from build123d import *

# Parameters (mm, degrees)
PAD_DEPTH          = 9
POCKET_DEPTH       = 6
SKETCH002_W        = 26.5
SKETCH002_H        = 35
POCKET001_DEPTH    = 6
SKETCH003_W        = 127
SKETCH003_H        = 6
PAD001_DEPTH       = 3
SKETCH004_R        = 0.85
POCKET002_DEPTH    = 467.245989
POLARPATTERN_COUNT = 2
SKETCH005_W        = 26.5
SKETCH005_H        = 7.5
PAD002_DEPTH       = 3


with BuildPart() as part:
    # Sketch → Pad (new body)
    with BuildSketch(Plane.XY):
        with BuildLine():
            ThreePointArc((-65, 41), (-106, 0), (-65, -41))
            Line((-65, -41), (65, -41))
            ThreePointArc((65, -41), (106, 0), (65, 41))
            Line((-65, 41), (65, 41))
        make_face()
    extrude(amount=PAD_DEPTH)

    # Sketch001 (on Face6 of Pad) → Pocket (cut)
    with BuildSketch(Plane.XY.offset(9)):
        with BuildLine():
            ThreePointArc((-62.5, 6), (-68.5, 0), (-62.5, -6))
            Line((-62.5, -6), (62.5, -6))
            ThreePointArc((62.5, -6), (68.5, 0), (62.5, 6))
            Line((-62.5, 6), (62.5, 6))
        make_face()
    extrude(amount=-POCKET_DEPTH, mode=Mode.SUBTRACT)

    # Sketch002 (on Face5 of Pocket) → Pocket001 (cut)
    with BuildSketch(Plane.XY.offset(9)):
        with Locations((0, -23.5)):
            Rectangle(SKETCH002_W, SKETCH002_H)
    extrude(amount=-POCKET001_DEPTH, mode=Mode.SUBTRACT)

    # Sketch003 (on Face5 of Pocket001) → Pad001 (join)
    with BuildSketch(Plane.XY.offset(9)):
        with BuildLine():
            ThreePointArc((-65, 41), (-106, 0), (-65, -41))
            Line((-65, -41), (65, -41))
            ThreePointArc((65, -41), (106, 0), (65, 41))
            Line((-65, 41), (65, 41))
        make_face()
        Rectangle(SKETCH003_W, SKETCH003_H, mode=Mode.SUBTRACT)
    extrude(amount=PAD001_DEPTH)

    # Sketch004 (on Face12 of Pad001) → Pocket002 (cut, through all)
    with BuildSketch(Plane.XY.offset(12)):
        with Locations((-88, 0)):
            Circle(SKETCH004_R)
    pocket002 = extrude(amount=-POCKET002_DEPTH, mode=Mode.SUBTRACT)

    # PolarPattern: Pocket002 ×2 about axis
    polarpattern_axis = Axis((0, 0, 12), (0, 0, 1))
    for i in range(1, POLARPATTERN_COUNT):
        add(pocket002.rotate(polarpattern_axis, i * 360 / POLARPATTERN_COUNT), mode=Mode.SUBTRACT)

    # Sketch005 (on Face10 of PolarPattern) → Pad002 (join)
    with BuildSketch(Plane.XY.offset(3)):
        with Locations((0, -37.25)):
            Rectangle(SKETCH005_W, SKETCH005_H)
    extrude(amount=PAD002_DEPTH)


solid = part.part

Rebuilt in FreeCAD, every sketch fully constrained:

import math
import FreeCAD as App
import Part
import Sketcher
from FreeCAD import Vector
Q = App.Units.Quantity


def add_polygon(sketch, points):
    """Adds a closed chain of lines whose ends are joined by coincident constraints."""
    first, n = sketch.GeometryCount, len(points)
    for a, b in zip(points, points[1:] + points[:1]):
        sketch.addGeometry(Part.LineSegment(App.Vector(*a, 0), App.Vector(*b, 0)), False)
    for i in range(n):
        sketch.addConstraint(Sketcher.Constraint("Coincident", first + i, 2, first + (i + 1) % n, 1))

doc = App.newDocument("Part")
body = doc.addObject("PartDesign::Body", "Body")

sketch1 = doc.addObject("Sketcher::SketchObject", "Sketch")
body.addObject(sketch1)
sketch1.AttachmentSupport = (doc.XY_Plane, [""])
sketch1.MapMode = "FlatFace"
sketch1.addGeometry([
    Part.ArcOfCircle(Part.Circle(Vector(-65, 0, 0), Vector(0, 0, 1), 41), math.radians(90), math.radians(270)),
    Part.LineSegment(Vector(-65, -41, 0), Vector(65, -41, 0)),
    Part.ArcOfCircle(Part.Circle(Vector(65, 0, 0), Vector(0, 0, 1), 41), math.radians(-90), math.radians(90)),
    Part.LineSegment(Vector(65, 41, 0), Vector(-65, 41, 0)),
], False)
sketch1.addConstraint([
    Sketcher.Constraint("Tangent", 0, 2, 1, 1),
    Sketcher.Constraint("Tangent", 1, 2, 2, 1),
    Sketcher.Constraint("Tangent", 2, 2, 3, 1),
    Sketcher.Constraint("Tangent", 3, 2, 0, 1),
    Sketcher.Constraint("Horizontal", 1),
    Sketcher.Constraint("Horizontal", 3),
    Sketcher.Constraint("Symmetric", 0, 3, 2, 3, -1, 1),
    Sketcher.Constraint("Radius", 0, Q("41 mm")),
    Sketcher.Constraint("DistanceX", 1, 1, 1, 2, Q("130 mm")),
])
pad1 = doc.addObject("PartDesign::Pad", "Pad")
body.addObject(pad1)
pad1.Profile = sketch1
pad1.Length = 9

sketch2 = doc.addObject("Sketcher::SketchObject", "Sketch001")
body.addObject(sketch2)
sketch2.AttachmentSupport = (doc.XY_Plane, [""])
sketch2.MapMode = "FlatFace"
sketch2.AttachmentOffset = App.Placement(Vector(0, 0, 9), App.Rotation())
sketch2.addGeometry([
    Part.ArcOfCircle(Part.Circle(Vector(-62, 0, 0), Vector(0, 0, 1), 6), math.radians(90), math.radians(270)),
    Part.LineSegment(Vector(-62, -6, 0), Vector(62, -6, 0)),
    Part.ArcOfCircle(Part.Circle(Vector(62, 0, 0), Vector(0, 0, 1), 6), math.radians(-90), math.radians(90)),
    Part.LineSegment(Vector(62, 6, 0), Vector(-62, 6, 0)),
], False)
sketch2.addConstraint([
    Sketcher.Constraint("Tangent", 0, 2, 1, 1),
    Sketcher.Constraint("Tangent", 1, 2, 2, 1),
    Sketcher.Constraint("Tangent", 2, 2, 3, 1),
    Sketcher.Constraint("Tangent", 3, 2, 0, 1),
    Sketcher.Constraint("Horizontal", 1),
    Sketcher.Constraint("Horizontal", 3),
    Sketcher.Constraint("Symmetric", 0, 3, 2, 3, -1, 1),
    Sketcher.Constraint("Radius", 0, Q("6 mm")),
    Sketcher.Constraint("DistanceX", 1, 1, 1, 2, Q("125 mm")),
])
pocket1 = doc.addObject("PartDesign::Pocket", "Pocket")
body.addObject(pocket1)
pocket1.Profile = sketch2
pocket1.Length = 6

sketch3 = doc.addObject("Sketcher::SketchObject", "Sketch002")
body.addObject(sketch3)
sketch3.AttachmentSupport = (doc.XY_Plane, [""])
sketch3.MapMode = "FlatFace"
sketch3.AttachmentOffset = App.Placement(Vector(0, 0, 9), App.Rotation())
add_polygon(sketch3, [(-13, -6), (-13, -41), (13, -41), (13, -6)])
sketch3.addConstraint([
    Sketcher.Constraint("Vertical", 0),
    Sketcher.Constraint("Horizontal", 1),
    Sketcher.Constraint("Vertical", 2),
    Sketcher.Constraint("Horizontal", 3),
    Sketcher.Constraint("DistanceY", 0, 2, 0, 1, Q("35 mm")),
    Sketcher.Constraint("DistanceX", 1, 1, 1, 2, Q("26.5 mm")),
    Sketcher.Constraint("DistanceY", 0, 2, -1, 1, Q("41 mm")),
    Sketcher.Constraint("DistanceX", 0, 2, -1, 1, Q("13.25 mm")),
])
pocket2 = doc.addObject("PartDesign::Pocket", "Pocket001")
body.addObject(pocket2)
pocket2.Profile = sketch3
pocket2.Length = 6

sketch4 = doc.addObject("Sketcher::SketchObject", "Sketch003")
body.addObject(sketch4)
sketch4.AttachmentSupport = (doc.XY_Plane, [""])
sketch4.MapMode = "FlatFace"
sketch4.AttachmentOffset = App.Placement(Vector(0, 0, 9), App.Rotation())
sketch4.addGeometry(Part.ArcOfCircle(Part.Circle(Vector(-65, 0, 0), Vector(0, 0, 1), 41), math.radians(90), math.radians(270)), False)
sketch4.addGeometry(Part.LineSegment(Vector(-65, -41, 0), Vector(65, -41, 0)), False)
sketch4.addGeometry(Part.ArcOfCircle(Part.Circle(Vector(65, 0, 0), Vector(0, 0, 1), 41), math.radians(-90), math.radians(90)), False)
sketch4.addGeometry(Part.LineSegment(Vector(65, 41, 0), Vector(-65, 41, 0)), False)
add_polygon(sketch4, [(64, -3), (-64, -3), (-64, 3), (64, 3)])
sketch4.addConstraint([
    Sketcher.Constraint("Tangent", 0, 2, 1, 1),
    Sketcher.Constraint("Tangent", 1, 2, 2, 1),
    Sketcher.Constraint("Tangent", 2, 2, 3, 1),
    Sketcher.Constraint("Tangent", 3, 2, 0, 1),
    Sketcher.Constraint("Horizontal", 1),
    Sketcher.Constraint("Horizontal", 3),
    Sketcher.Constraint("Horizontal", 4),
    Sketcher.Constraint("Vertical", 5),
    Sketcher.Constraint("Horizontal", 6),
    Sketcher.Constraint("Vertical", 7),
    Sketcher.Constraint("Symmetric", 0, 3, 2, 3, -1, 1),
    Sketcher.Constraint("Symmetric", 4, 2, 6, 2, -1, 1),
    Sketcher.Constraint("Radius", 0, Q("41 mm")),
    Sketcher.Constraint("DistanceX", 1, 1, 1, 2, Q("130 mm")),
    Sketcher.Constraint("DistanceX", 4, 2, 4, 1, Q("127 mm")),
    Sketcher.Constraint("DistanceY", 5, 1, 5, 2, Q("6 mm")),
])
pad2 = doc.addObject("PartDesign::Pad", "Pad001")
body.addObject(pad2)
pad2.Profile = sketch4
pad2.Length = 3

sketch5 = doc.addObject("Sketcher::SketchObject", "Sketch004")
body.addObject(sketch5)
sketch5.AttachmentSupport = (doc.XY_Plane, [""])
sketch5.MapMode = "FlatFace"
sketch5.AttachmentOffset = App.Placement(Vector(0, 0, 12), App.Rotation())
sketch5.addGeometry(Part.Circle(Vector(-88, 0, 0), Vector(0, 0, 1), 0.8), False)
sketch5.addConstraint([
    Sketcher.Constraint("PointOnObject", 0, 3, -1),
    Sketcher.Constraint("Diameter", 0, Q("1.7 mm")),
    Sketcher.Constraint("DistanceX", 0, 3, -1, 1, Q("88 mm")),
])
pocket3 = doc.addObject("PartDesign::Pocket", "Pocket002")
body.addObject(pocket3)
pocket3.Profile = sketch5
pocket3.Type = "ThroughAll"
doc.recompute()

polarpattern = doc.addObject("PartDesign::PolarPattern", "PolarPattern")
body.addObject(polarpattern)
polarpattern.Originals = [pocket3]
polarpattern.Axis = (doc.Z_Axis, [""])
polarpattern.Angle = 360
polarpattern.Occurrences = 2
body.Tip = polarpattern

sketch6 = doc.addObject("Sketcher::SketchObject", "Sketch005")
body.addObject(sketch6)
sketch6.AttachmentSupport = (doc.XY_Plane, [""])
sketch6.MapMode = "FlatFace"
sketch6.AttachmentOffset = App.Placement(Vector(0, 0, 3), App.Rotation())
add_polygon(sketch6, [(-13, -34), (-13, -41), (13, -41), (13, -34)])
sketch6.addConstraint([
    Sketcher.Constraint("Vertical", 0),
    Sketcher.Constraint("Horizontal", 1),
    Sketcher.Constraint("Vertical", 2),
    Sketcher.Constraint("Horizontal", 3),
    Sketcher.Constraint("DistanceX", 1, 1, 1, 2, Q("26.5 mm")),
    Sketcher.Constraint("DistanceY", 0, 2, 0, 1, Q("7.5 mm")),
    Sketcher.Constraint("DistanceY", 0, 2, -1, 1, Q("41 mm")),
    Sketcher.Constraint("DistanceX", 0, 2, -1, 1, Q("13.25 mm")),
])
pad3 = doc.addObject("PartDesign::Pad", "Pad002")
body.addObject(pad3)
pad3.Profile = sketch6
pad3.Length = 3

doc.recompute()
